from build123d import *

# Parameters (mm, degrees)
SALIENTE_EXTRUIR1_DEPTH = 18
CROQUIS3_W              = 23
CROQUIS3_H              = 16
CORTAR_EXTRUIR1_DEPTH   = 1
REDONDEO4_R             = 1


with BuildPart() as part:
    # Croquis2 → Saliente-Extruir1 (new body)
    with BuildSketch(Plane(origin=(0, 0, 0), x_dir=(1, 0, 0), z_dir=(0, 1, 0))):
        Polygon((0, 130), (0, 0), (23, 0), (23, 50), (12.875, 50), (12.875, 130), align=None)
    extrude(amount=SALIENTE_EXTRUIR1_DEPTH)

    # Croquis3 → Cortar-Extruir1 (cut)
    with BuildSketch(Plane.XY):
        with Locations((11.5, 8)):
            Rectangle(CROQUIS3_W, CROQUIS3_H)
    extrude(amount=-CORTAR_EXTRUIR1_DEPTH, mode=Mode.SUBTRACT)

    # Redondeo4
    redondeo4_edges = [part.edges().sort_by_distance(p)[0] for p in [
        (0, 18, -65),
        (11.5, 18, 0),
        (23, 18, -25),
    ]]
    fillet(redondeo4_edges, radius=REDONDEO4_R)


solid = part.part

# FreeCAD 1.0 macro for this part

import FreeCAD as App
import Part
import Sketcher
Q = App.Units.Quantity


def edges_at(feature, points):
    """Names of the edges that pass closest to the given points."""
    edges = feature.Shape.Edges
    near = lambda p: min(range(len(edges)), key=lambda i: edges[i].distToShape(Part.Vertex(*p))[0])
    return sorted({f"Edge{near(p) + 1}" for p in points})

doc = App.newDocument("Part")
body = doc.addObject("PartDesign::Body", "Body")

# Sketch on XZ plane
sketch1 = body.newObject("Sketcher::SketchObject", "Sketch")
sketch1.AttachmentSupport = (doc.getObject("XZ_Plane"), [""])
sketch1.MapMode = "FlatFace"
sketch1.addGeometry([
    Part.LineSegment(App.Vector(0, -130, 0), App.Vector(0, 0, 0)),  # 0
    Part.LineSegment(App.Vector(0, 0, 0), App.Vector(23, 0, 0)),  # 1
    Part.LineSegment(App.Vector(23, 0, 0), App.Vector(23, -50, 0)),  # 2
    Part.LineSegment(App.Vector(23, -50, 0), App.Vector(13, -50, 0)),  # 3
    Part.LineSegment(App.Vector(13, -50, 0), App.Vector(13, -130, 0)),  # 4
    Part.LineSegment(App.Vector(13, -130, 0), App.Vector(0, -130, 0)),  # 5
], False)
sketch1.addConstraint([
    Sketcher.Constraint("Coincident", 0, 2, 1, 1),
    Sketcher.Constraint("Coincident", 1, 2, 2, 1),
    Sketcher.Constraint("Coincident", 2, 2, 3, 1),
    Sketcher.Constraint("Coincident", 3, 2, 4, 1),
    Sketcher.Constraint("Coincident", 4, 2, 5, 1),
    Sketcher.Constraint("Coincident", 5, 2, 0, 1),
    Sketcher.Constraint("Vertical", 0),
    Sketcher.Constraint("Horizontal", 1),
    Sketcher.Constraint("Vertical", 2),
    Sketcher.Constraint("Horizontal", 3),
    Sketcher.Constraint("Vertical", 4),
    Sketcher.Constraint("Horizontal", 5),
    Sketcher.Constraint("Coincident", 0, 2, -1, 1),
    Sketcher.Constraint("DistanceX", 1, 1, 1, 2, Q("23 mm")),
    Sketcher.Constraint("DistanceY", 0, 1, 0, 2, Q("130 mm")),
    Sketcher.Constraint("DistanceY", 2, 2, 2, 1, Q("50 mm")),
    Sketcher.Constraint("DistanceX", 3, 2, 3, 1, Q("10.125 mm")),
])
pad1 = body.newObject("PartDesign::Pad", "Pad")
pad1.Profile = sketch1
pad1.Length = 18
pad1.Reversed = True

# Sketch on XY plane
sketch2 = body.newObject("Sketcher::SketchObject", "Sketch001")
sketch2.AttachmentSupport = (doc.getObject("XY_Plane"), [""])
sketch2.MapMode = "FlatFace"
sketch2.addGeometry([
    Part.LineSegment(App.Vector(0, 16, 0), App.Vector(0, 0, 0)),
    Part.LineSegment(App.Vector(0, 0, 0), App.Vector(23, 0, 0)),
    Part.LineSegment(App.Vector(23, 0, 0), App.Vector(23, 16, 0)),
    Part.LineSegment(App.Vector(23, 16, 0), App.Vector(0, 16, 0)),
], False)
sketch2.addConstraint([
    Sketcher.Constraint("Coincident", 0, 2, 1, 1),
    Sketcher.Constraint("Coincident", 1, 2, 2, 1),
    Sketcher.Constraint("Coincident", 2, 2, 3, 1),
    Sketcher.Constraint("Coincident", 3, 2, 0, 1),
    Sketcher.Constraint("Vertical", 0),
    Sketcher.Constraint("Horizontal", 1),
    Sketcher.Constraint("Vertical", 2),
    Sketcher.Constraint("Horizontal", 3),
    Sketcher.Constraint("Coincident", 0, 2, -1, 1),
    Sketcher.Constraint("DistanceX", 1, 1, 1, 2, Q("23 mm")),
    Sketcher.Constraint("DistanceY", 0, 2, 0, 1, Q("16 mm")),
])
pocket1 = body.newObject("PartDesign::Pocket", "Pocket")
pocket1.Profile = sketch2
pocket1.Length = 1
doc.recompute()

fillet = body.newObject("PartDesign::Fillet", "Fillet")
fillet.Base = (pocket1, edges_at(pocket1, [(0, 18, -65), (11.5, 18, 0), (23, 18, -25)]))
fillet.Radius = 1

doc.recompute()
